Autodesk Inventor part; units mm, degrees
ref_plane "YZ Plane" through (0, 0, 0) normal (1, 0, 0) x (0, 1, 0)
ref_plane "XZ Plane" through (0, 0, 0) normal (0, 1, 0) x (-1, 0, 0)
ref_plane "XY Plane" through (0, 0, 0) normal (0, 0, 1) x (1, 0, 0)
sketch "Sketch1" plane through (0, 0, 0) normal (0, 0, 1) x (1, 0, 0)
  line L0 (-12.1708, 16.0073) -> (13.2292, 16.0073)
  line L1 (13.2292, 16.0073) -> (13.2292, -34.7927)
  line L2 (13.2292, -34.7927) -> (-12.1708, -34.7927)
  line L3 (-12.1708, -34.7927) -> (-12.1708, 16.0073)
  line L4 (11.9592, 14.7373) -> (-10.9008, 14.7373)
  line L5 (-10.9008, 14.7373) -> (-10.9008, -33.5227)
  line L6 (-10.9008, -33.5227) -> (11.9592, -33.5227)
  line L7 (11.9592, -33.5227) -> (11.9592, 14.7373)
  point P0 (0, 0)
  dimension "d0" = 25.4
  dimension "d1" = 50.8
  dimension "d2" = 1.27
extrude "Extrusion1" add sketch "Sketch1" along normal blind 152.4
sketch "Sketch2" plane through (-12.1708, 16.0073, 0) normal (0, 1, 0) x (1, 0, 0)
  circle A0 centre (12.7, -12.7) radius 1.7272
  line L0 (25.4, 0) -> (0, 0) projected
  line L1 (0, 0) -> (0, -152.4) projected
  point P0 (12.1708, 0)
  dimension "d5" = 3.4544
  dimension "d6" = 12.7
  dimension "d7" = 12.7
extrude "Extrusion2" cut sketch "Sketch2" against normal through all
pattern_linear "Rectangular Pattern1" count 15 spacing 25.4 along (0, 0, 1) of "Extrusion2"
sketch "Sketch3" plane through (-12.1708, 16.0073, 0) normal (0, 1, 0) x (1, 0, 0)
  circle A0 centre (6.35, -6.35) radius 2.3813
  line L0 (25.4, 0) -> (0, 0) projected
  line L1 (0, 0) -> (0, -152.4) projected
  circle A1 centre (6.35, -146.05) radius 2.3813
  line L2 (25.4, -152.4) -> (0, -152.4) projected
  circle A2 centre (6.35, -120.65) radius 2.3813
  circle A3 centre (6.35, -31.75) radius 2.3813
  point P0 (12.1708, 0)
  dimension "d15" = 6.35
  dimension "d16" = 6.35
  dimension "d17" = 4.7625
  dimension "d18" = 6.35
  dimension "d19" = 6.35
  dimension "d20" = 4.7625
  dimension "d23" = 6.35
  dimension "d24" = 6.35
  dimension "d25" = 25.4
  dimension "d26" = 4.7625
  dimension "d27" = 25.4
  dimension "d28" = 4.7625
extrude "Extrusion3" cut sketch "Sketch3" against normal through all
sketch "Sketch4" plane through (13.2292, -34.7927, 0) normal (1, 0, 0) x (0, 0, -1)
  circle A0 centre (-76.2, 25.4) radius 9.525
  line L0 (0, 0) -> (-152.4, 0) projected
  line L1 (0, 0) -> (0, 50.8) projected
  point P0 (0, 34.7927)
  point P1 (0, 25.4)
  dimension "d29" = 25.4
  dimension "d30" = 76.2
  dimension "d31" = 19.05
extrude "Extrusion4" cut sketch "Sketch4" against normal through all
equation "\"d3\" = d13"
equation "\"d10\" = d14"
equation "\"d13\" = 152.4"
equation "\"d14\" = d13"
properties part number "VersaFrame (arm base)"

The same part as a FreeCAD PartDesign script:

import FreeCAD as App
import Part
import Sketcher

V = App.Vector
Q = App.Units.Quantity

doc = App.newDocument("Part")
body = doc.addObject("PartDesign::Body", "Body")

# Sketch on XY plane
sketch1 = body.newObject("Sketcher::SketchObject", "Sketch")
sketch1.AttachmentSupport = (doc.getObject("XY_Plane"), [""])
sketch1.MapMode = "FlatFace"
sketch1.addGeometry([
    Part.LineSegment(V(13, 16, 0), V(-12, 16, 0)),  # 0
    Part.LineSegment(V(-12, 16, 0), V(-12, -35, 0)),  # 1
    Part.LineSegment(V(-12, -35, 0), V(13, -35, 0)),  # 2
    Part.LineSegment(V(13, -35, 0), V(13, 16, 0)),  # 3
    Part.LineSegment(V(-11, 15, 0), V(12, 15, 0)),  # 4
    Part.LineSegment(V(12, 15, 0), V(12, -34, 0)),  # 5
    Part.LineSegment(V(12, -34, 0), V(-11, -34, 0)),  # 6
    Part.LineSegment(V(-11, -34, 0), V(-11, 15, 0)),  # 7
], False)
sketch1.addConstraint([
    Sketcher.Constraint("Coincident", 0, 2, 1, 1),
    Sketcher.Constraint("Coincident", 1, 2, 2, 1),
    Sketcher.Constraint("Coincident", 2, 2, 3, 1),
    Sketcher.Constraint("Coincident", 3, 2, 0, 1),
    Sketcher.Constraint("Coincident", 4, 2, 5, 1),
    Sketcher.Constraint("Coincident", 5, 2, 6, 1),
    Sketcher.Constraint("Coincident", 6, 2, 7, 1),
    Sketcher.Constraint("Coincident", 7, 2, 4, 1),
    Sketcher.Constraint("Horizontal", 0),
    Sketcher.Constraint("Vertical", 1),
    Sketcher.Constraint("Horizontal", 2),
    Sketcher.Constraint("Vertical", 3),
    Sketcher.Constraint("Horizontal", 4),
    Sketcher.Constraint("Vertical", 5),
    Sketcher.Constraint("Horizontal", 6),
    Sketcher.Constraint("Vertical", 7),
    Sketcher.Constraint("DistanceX", 0, 2, 0, 1, Q("1 in")),
    Sketcher.Constraint("DistanceY", 1, 2, 1, 1, Q("2 in")),
    Sketcher.Constraint("DistanceX", 4, 2, 3, 2, Q("0.05 in")),
    Sketcher.Constraint("DistanceY", 4, 2, 3, 2, Q("0.05 in")),
    Sketcher.Constraint("DistanceY", 2, 2, 5, 2, Q("0.05 in")),
    Sketcher.Constraint("DistanceX", 1, 2, 6, 2, Q("0.05 in")),
    Sketcher.Constraint("DistanceY", -1, 1, 0, 2, Q("0.6302 in")),
    Sketcher.Constraint("DistanceX", 0, 2, -1, 1, Q("12.1708 mm")),
])
pad1 = body.newObject("PartDesign::Pad", "Pad")
pad1.Profile = sketch1
pad1.Length = Q("6 in")

# Sketch on XZ plane
sketch2 = body.newObject("Sketcher::SketchObject", "Sketch001")
sketch2.AttachmentSupport = (doc.getObject("XZ_Plane"), [""])
sketch2.MapMode = "FlatFace"
sketch2.AttachmentOffset = App.Placement(V(0, 0, -0.6302087 * 25.4), App.Rotation())
sketch2.addGeometry(Part.Circle(V(0.5, 12.7, 0), V(0, 0, 1), 1.7), False)
sketch2.addConstraint([
    Sketcher.Constraint("Diameter", 0, Q("0.136 in")),
    Sketcher.Constraint("DistanceY", -1, 1, 0, 3, Q("0.5 in")),
    Sketcher.Constraint("DistanceX", -1, 1, 0, 3, Q("0.5292 mm")),
])
pocket1 = body.newObject("PartDesign::Pocket", "Pocket")
pocket1.Profile = sketch2
pocket1.Type = "ThroughAll"
pocket1.Reversed = True
doc.recompute()

linearpattern = body.newObject("PartDesign::LinearPattern", "LinearPattern")
linearpattern.Originals = [pocket1]
linearpattern.Direction = (doc.getObject("Z_Axis"), [""])
linearpattern.Mode = "offset"
linearpattern.Offset = Q("1 in")
linearpattern.Occurrences = 15
body.Tip = linearpattern

# Sketch on XZ plane
sketch3 = body.newObject("Sketcher::SketchObject", "Sketch002")
sketch3.AttachmentSupport = (doc.getObject("XZ_Plane"), [""])
sketch3.MapMode = "FlatFace"
sketch3.AttachmentOffset = App.Placement(V(0, 0, -0.6302087 * 25.4), App.Rotation())
sketch3.addGeometry([
    Part.Circle(V(-5.8, 6.3, 0), V(0, 0, 1), 2.4),
    Part.Circle(V(-5.8, 146.1, 0), V(0, 0, 1), 2.4),
    Part.Circle(V(-5.8, 120.7, 0), V(0, 0, 1), 2.4),
    Part.Circle(V(-5.8, 31.8, 0), V(0, 0, 1), 2.4),
], False)
sketch3.addConstraint([
    Sketcher.Constraint("Equal", 0, 1),
    Sketcher.Constraint("Equal", 1, 2),
    Sketcher.Constraint("Equal", 2, 3),
    Sketcher.Constraint("Vertical", 0, 3, 1, 3),
    Sketcher.Constraint("Vertical", 1, 3, 2, 3),
    Sketcher.Constraint("Vertical", 2, 3, 3, 3),
    Sketcher.Constraint("Diameter", 0, Q("0.1875 in")),
    Sketcher.Constraint("DistanceY", 2, 3, 1, 3, Q("1 in")),
    Sketcher.Constraint("DistanceY", 0, 3, 3, 3, Q("1 in")),
    Sketcher.Constraint("DistanceY", -1, 1, 0, 3, Q("0.25 in")),
    Sketcher.Constraint("DistanceY", 0, 3, 1, 3, Q("5.5 in")),
    Sketcher.Constraint("DistanceX", 0, 3, -1, 1, Q("5.8208 mm")),
])
pocket2 = body.newObject("PartDesign::Pocket", "Pocket001")
pocket2.Profile = sketch3
pocket2.Type = "ThroughAll"
pocket2.Reversed = True

# Sketch on YZ plane
sketch4 = body.newObject("Sketcher::SketchObject", "Sketch003")
sketch4.AttachmentSupport = (doc.getObject("YZ_Plane"), [""])
sketch4.MapMode = "FlatFace"
sketch4.AttachmentOffset = App.Placement(V(0, 0, 13.2292), App.Rotation())
sketch4.addGeometry(Part.Circle(V(-9, 76, 0), V(0, 0, 1), 10), False)
sketch4.addConstraint([
    Sketcher.Constraint("Diameter", 0, Q("0.75 in")),
    Sketcher.Constraint("DistanceY", -1, 1, 0, 3, Q("3 in")),
    Sketcher.Constraint("DistanceX", 0, 3, -1, 1, Q("0.3698 in")),
])
pocket3 = body.newObject("PartDesign::Pocket", "Pocket002")
pocket3.Profile = sketch4
pocket3.Type = "ThroughAll"

doc.recompute()
